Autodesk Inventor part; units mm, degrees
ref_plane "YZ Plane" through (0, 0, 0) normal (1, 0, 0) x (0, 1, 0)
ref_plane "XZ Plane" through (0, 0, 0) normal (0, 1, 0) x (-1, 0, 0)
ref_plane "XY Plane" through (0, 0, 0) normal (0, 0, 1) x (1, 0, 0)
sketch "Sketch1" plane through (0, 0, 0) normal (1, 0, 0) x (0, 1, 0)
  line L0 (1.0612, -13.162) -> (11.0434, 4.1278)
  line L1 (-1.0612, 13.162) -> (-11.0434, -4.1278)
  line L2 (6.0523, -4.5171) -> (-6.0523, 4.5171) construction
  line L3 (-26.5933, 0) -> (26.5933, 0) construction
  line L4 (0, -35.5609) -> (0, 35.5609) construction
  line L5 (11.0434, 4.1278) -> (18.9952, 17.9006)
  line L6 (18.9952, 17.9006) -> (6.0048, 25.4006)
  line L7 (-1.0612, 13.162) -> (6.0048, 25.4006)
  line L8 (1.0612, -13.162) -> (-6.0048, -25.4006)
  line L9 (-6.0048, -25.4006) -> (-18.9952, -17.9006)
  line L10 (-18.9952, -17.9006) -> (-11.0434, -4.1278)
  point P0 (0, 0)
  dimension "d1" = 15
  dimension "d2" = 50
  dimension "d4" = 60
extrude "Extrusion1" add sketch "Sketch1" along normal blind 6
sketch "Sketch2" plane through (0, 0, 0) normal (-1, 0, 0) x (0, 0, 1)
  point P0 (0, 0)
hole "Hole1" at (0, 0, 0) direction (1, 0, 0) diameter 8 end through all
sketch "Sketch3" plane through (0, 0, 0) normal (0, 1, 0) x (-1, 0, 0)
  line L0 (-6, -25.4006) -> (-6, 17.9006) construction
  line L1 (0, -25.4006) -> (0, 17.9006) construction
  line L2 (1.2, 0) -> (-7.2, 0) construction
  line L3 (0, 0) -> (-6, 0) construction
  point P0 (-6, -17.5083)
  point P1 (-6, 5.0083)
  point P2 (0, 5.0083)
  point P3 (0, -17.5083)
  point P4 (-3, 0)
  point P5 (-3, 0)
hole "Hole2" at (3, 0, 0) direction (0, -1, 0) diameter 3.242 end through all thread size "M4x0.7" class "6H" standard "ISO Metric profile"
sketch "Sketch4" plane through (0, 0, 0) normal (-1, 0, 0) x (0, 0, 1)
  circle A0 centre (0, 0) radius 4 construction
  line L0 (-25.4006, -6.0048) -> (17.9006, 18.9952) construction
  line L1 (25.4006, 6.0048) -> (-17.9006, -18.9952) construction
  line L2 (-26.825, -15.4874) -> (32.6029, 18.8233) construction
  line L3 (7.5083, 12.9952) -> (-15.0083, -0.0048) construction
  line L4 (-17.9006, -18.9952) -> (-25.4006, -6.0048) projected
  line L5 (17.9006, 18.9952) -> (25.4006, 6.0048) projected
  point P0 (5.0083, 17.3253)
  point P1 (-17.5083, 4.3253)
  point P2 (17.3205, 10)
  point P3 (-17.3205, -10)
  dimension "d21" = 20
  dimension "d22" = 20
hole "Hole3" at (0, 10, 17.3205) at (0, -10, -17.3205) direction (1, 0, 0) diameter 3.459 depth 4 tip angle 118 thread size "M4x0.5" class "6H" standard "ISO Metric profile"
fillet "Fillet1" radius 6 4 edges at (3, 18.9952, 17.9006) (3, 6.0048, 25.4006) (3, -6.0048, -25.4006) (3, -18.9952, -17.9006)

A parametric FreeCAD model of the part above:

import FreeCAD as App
import Part
import Sketcher

V = App.Vector
Q = App.Units.Quantity


def edges_at(feature, points):
    """Names of the edges that pass closest to the given points."""
    edges = feature.Shape.Edges
    near = lambda p: min(range(len(edges)), key=lambda i: edges[i].distToShape(Part.Vertex(*p))[0])
    return sorted({f"Edge{near(p) + 1}" for p in points})


def add_polygon(sketch, points):
    """Adds a closed chain of lines whose ends are joined by coincident constraints."""
    first, n = sketch.GeometryCount, len(points)
    for a, b in zip(points, points[1:] + points[:1]):
        sketch.addGeometry(Part.LineSegment(App.Vector(*a, 0), App.Vector(*b, 0)), False)
    for i in range(n):
        sketch.addConstraint(Sketcher.Constraint("Coincident", first + i, 2, first + (i + 1) % n, 1))

doc = App.newDocument("Part")
body = doc.addObject("PartDesign::Body", "Body")

# Sketch on YZ plane
sketch1 = doc.addObject("Sketcher::SketchObject", "Sketch")
body.addObject(sketch1)
sketch1.AttachmentSupport = (doc.YZ_Plane, [""])
sketch1.MapMode = "FlatFace"
add_polygon(sketch1, [(-6, -25), (1, -13), (11, 4), (19, 18), (6, 25), (-1, 13), (-11, -4), (-19, -18)])  # lines 0-7
sketch1.addConstraint(Sketcher.Constraint("Symmetric", 0, 2, 4, 2, -1, 1))
sketch1.addConstraint(Sketcher.Constraint("Symmetric", 1, 2, 5, 2, -1, 1))
sketch1.addConstraint(Sketcher.Constraint("Symmetric", 2, 2, 6, 2, -1, 1))
sketch1.addConstraint(Sketcher.Constraint("Symmetric", 3, 2, 7, 2, -1, 1))
sketch1.addConstraint(Sketcher.Constraint("Parallel", 0, 1))
sketch1.addConstraint(Sketcher.Constraint("Parallel", 1, 2))
sketch1.addConstraint(Sketcher.Constraint("Perpendicular", 2, 3))
sketch1.addConstraint(Sketcher.Constraint("Angle", 0, Q("59.9999 deg")))
sketch1.addConstraint(Sketcher.Constraint("Distance", 3, Q("15 mm")))
sketch1.addConstraint(Sketcher.Constraint("DistanceX", 6, 2, 3, 2, Q("25 mm")))
sketch1.addConstraint(Sketcher.Constraint("Distance", 0, Q("14.132 mm")))
sketch1.addConstraint(Sketcher.Constraint("Distance", 1, Q("19.9645 mm")))
pad1 = doc.addObject("PartDesign::Pad", "Pad")
body.addObject(pad1)
pad1.Profile = sketch1
pad1.Length = 6

# Sketch on YZ plane
sketch2 = doc.addObject("Sketcher::SketchObject", "Sketch001")
body.addObject(sketch2)
sketch2.AttachmentSupport = (doc.YZ_Plane, [""])
sketch2.MapMode = "FlatFace"
sketch2.addGeometry(Part.Circle(V(0, 0, 0), V(0, 0, 1), 4), False)
sketch2.addConstraint(Sketcher.Constraint("Coincident", 0, 3, -1, 1))
sketch2.addConstraint(Sketcher.Constraint("Diameter", 0, Q("8 mm")))
doc.recompute()
hole = doc.addObject("PartDesign::Hole", "Hole")
body.addObject(hole)
hole.Profile = sketch2
hole.ThreadType = "None"
hole.Diameter = 8
hole.DepthType = "ThroughAll"
hole.Reversed = True

# Sketch on XZ plane
sketch3 = doc.addObject("Sketcher::SketchObject", "Sketch002")
body.addObject(sketch3)
sketch3.AttachmentSupport = (doc.XZ_Plane, [""])
sketch3.MapMode = "FlatFace"
sketch3.addGeometry(Part.Circle(V(3, 0, 0), V(0, 0, 1), 1.6), False)
sketch3.addConstraint(Sketcher.Constraint("PointOnObject", 0, 3, -1))
sketch3.addConstraint(Sketcher.Constraint("Diameter", 0, Q("3.242 mm")))
sketch3.addConstraint(Sketcher.Constraint("DistanceX", -1, 1, 0, 3, Q("3 mm")))
doc.recompute()
hole2 = doc.addObject("PartDesign::Hole", "Hole001")
body.addObject(hole2)
hole2.Profile = sketch3
hole2.ThreadType = "None"
hole2.Diameter = 3.242
hole2.DepthType = "ThroughAll"
hole2.Reversed = True

# Sketch on YZ plane
sketch4 = doc.addObject("Sketcher::SketchObject", "Sketch003")
body.addObject(sketch4)
sketch4.AttachmentSupport = (doc.YZ_Plane, [""])
sketch4.MapMode = "FlatFace"
sketch4.addGeometry(Part.Circle(V(10, 17.3, 0), V(0, 0, 1), 1.7), False)
sketch4.addGeometry(Part.Circle(V(-10, -17.3, 0), V(0, 0, 1), 1.7), False)
sketch4.addConstraint(Sketcher.Constraint("Equal", 0, 1))
sketch4.addConstraint(Sketcher.Constraint("Symmetric", 0, 3, 1, 3, -1, 1))
sketch4.addConstraint(Sketcher.Constraint("Diameter", 0, Q("3.459 mm")))
sketch4.addConstraint(Sketcher.Constraint("DistanceX", -1, 1, 0, 3, Q("10 mm")))
sketch4.addConstraint(Sketcher.Constraint("DistanceY", 1, 3, 0, 3, Q("34.641 mm")))
doc.recompute()
hole3 = doc.addObject("PartDesign::Hole", "Hole002")
body.addObject(hole3)
hole3.Profile = sketch4
hole3.ThreadType = "None"
hole3.Diameter = 3.459
hole3.DepthType = "Dimension"
hole3.Depth = 4
hole3.DrillPoint = "Angled"
hole3.DrillPointAngle = 118
hole3.Reversed = True
doc.recompute()

fillet = doc.addObject("PartDesign::Fillet", "Fillet")
body.addObject(fillet)
fillet.Base = (hole3, edges_at(hole3, [
    (3, 18.995, 17.901),
    (3, 6.005, 25.401),
    (3, -6.005, -25.401),
    (3, -18.995, -17.901),
]))
fillet.Radius = 6

doc.recompute()
